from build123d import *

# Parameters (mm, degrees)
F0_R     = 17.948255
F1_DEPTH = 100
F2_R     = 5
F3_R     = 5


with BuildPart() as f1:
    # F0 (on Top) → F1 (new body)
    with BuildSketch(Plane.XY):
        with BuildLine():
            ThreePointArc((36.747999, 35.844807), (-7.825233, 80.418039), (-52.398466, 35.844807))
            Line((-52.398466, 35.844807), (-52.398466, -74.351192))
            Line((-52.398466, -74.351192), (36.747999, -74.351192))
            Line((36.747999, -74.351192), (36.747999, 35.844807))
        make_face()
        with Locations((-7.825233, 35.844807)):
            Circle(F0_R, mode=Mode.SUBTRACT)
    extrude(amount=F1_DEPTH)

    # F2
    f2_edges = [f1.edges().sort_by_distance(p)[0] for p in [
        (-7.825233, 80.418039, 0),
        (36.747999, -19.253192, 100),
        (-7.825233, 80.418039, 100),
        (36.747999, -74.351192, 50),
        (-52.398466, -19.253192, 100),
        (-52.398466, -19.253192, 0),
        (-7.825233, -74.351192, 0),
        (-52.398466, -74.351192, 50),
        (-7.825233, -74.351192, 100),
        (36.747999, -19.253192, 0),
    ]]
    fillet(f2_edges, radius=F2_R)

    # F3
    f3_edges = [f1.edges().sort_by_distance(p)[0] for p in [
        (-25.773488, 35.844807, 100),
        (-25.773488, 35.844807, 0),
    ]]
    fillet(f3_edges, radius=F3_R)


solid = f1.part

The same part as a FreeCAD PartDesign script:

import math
import FreeCAD as App
import Part
import Sketcher
from FreeCAD import Vector


def edges_at(feature, points):
    """Names of the edges that pass closest to the given points."""
    edges = feature.Shape.Edges
    near = lambda p: min(range(len(edges)), key=lambda i: edges[i].distToShape(Part.Vertex(*p))[0])
    return sorted({f"Edge{near(p) + 1}" for p in points})

doc = App.newDocument("Part")
params = doc.addObject("Spreadsheet::Sheet", "Params")
for row, (alias, value) in enumerate([
    ("pad1_length", "100 mm"),
    ("fillet_radius", "5 mm"),
    ("fillet2_radius", "5 mm"),
], start=1):
    params.set(f"A{row}", alias)
    params.set(f"B{row}", "=" + value)
    params.setAlias(f"B{row}", alias)

body = doc.addObject("PartDesign::Body", "Body")

# Sketch on XY plane
sketch1 = doc.addObject("Sketcher::SketchObject", "Sketch")
body.addObject(sketch1)
sketch1.AttachmentSupport = (doc.XY_Plane, [""])
sketch1.MapMode = "FlatFace"
sketch1.addGeometry([
    Part.ArcOfCircle(Part.Circle(Vector(-7.825234, 35.844806, 0), Vector(0, 0, 1), 44.573233), math.radians(0.000001), math.radians(179.999999)),  # 0
    Part.LineSegment(Vector(-52.398466, 35.844807, 0), Vector(-52.398466, -74.351192, 0)),  # 1
    Part.LineSegment(Vector(-52.398466, -74.351192, 0), Vector(36.747999, -74.351192, 0)),  # 2
    Part.LineSegment(Vector(36.747999, -74.351192, 0), Vector(36.747999, 35.844807, 0)),  # 3
    Part.Circle(Vector(-7.825233, 35.844807, 0), Vector(0, 0, 1), 17.948255),  # 4
], False)
sketch1.addConstraint([
    Sketcher.Constraint("Tangent", 0, 2, 1, 1),
    Sketcher.Constraint("Coincident", 1, 2, 2, 1),
    Sketcher.Constraint("Coincident", 2, 2, 3, 1),
    Sketcher.Constraint("Tangent", 3, 2, 0, 1),
    Sketcher.Constraint("Vertical", 1),
    Sketcher.Constraint("Horizontal", 2),
    Sketcher.Constraint("Vertical", 3),
    Sketcher.Constraint("Coincident", 4, 3, 0, 3),
    Sketcher.Constraint("Diameter", 4, 35.89651),
    Sketcher.Constraint("DistanceY", 1, 2, 1, 1, 110.195999),
    Sketcher.Constraint("DistanceX", -1, 1, 2, 2, 36.747999),
    Sketcher.Constraint("Radius", 0, 44.573233),
    Sketcher.Constraint("DistanceY", 1, 2, -1, 1, 74.351192),
])
pad1 = doc.addObject("PartDesign::Pad", "Pad")
body.addObject(pad1)
pad1.Profile = sketch1
pad1.setExpression("Length", "Params.pad1_length")
doc.recompute()

fillet = doc.addObject("PartDesign::Fillet", "Fillet")
body.addObject(fillet)
fillet.Base = (pad1, edges_at(pad1, [
    (-7.825, 80.418, 0),
    (36.748, -19.253, 100),
    (-7.825, 80.418, 100),
    (36.748, -74.351, 50),
    (-52.398, -19.253, 100),
    (-52.398, -19.253, 0),
    (-7.825, -74.351, 0),
    (-52.398, -74.351, 50),
    (-7.825, -74.351, 100),
    (36.748, -19.253, 0),
]))
fillet.setExpression("Radius", "Params.fillet_radius")
doc.recompute()

fillet2 = doc.addObject("PartDesign::Fillet", "Fillet001")
body.addObject(fillet2)
fillet2.Base = (fillet, edges_at(fillet, [(-25.773, 35.845, 100), (-25.773, 35.845, 0)]))
fillet2.setExpression("Radius", "Params.fillet2_radius")

doc.recompute()
